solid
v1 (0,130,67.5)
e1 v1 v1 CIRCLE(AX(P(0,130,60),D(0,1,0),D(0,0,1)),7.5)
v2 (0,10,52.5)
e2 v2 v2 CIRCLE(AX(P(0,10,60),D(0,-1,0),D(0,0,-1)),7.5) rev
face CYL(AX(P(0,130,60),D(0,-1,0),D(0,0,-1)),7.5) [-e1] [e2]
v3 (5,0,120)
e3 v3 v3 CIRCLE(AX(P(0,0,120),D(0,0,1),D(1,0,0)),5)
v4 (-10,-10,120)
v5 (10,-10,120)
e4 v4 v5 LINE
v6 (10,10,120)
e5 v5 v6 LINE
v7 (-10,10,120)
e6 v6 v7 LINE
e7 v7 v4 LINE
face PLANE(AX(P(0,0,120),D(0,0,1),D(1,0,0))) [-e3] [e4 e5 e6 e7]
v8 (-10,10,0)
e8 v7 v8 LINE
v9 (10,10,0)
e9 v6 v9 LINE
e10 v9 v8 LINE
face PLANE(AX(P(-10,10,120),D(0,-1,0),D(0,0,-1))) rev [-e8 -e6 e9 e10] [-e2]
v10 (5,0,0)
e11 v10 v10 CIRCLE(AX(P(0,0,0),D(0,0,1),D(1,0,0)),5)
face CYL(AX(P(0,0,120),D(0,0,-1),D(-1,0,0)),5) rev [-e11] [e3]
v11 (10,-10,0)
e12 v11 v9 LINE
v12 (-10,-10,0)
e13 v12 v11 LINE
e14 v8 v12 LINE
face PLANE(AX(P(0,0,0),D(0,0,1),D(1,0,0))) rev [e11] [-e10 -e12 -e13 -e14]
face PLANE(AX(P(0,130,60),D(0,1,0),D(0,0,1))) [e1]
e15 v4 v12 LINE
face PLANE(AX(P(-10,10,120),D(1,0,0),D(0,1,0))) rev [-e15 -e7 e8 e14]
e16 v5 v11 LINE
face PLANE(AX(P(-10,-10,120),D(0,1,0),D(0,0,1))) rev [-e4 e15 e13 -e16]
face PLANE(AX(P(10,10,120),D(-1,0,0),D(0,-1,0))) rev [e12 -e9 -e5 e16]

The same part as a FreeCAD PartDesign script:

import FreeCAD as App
import Part
import Sketcher
from FreeCAD import Vector


def add_polygon(sketch, points):
    """Adds a closed chain of lines whose ends are joined by coincident constraints."""
    first, n = sketch.GeometryCount, len(points)
    for a, b in zip(points, points[1:] + points[:1]):
        sketch.addGeometry(Part.LineSegment(App.Vector(*a, 0), App.Vector(*b, 0)), False)
    for i in range(n):
        sketch.addConstraint(Sketcher.Constraint("Coincident", first + i, 2, first + (i + 1) % n, 1))

doc = App.newDocument("Part")
params = doc.addObject("Spreadsheet::Sheet", "Params")
for row, (alias, value) in enumerate([
    ("sketch1_diameter", "10 mm"),
    ("sketch1_width", "20 mm"),
    ("pad1_length", "120 mm"),
    ("sketch2_diameter", "15 mm"),
    ("pad2_length", "120 mm"),
], start=1):
    params.set(f"A{row}", alias)
    params.set(f"B{row}", "=" + value)
    params.setAlias(f"B{row}", alias)

body = doc.addObject("PartDesign::Body", "Body")

# Sketch on XY plane
sketch1 = body.newObject("Sketcher::SketchObject", "Sketch")
sketch1.AttachmentSupport = (doc.getObject("XY_Plane"), [""])
sketch1.MapMode = "FlatFace"
add_polygon(sketch1, [(-10, 10), (-10, -10), (10, -10), (10, 10)])  # lines 0-3
sketch1.addGeometry(Part.Circle(Vector(0, 0, 0), Vector(0, 0, 1), 5), False)  # 4
sketch1.addConstraint(Sketcher.Constraint("Vertical", 0))
sketch1.addConstraint(Sketcher.Constraint("Horizontal", 1))
sketch1.addConstraint(Sketcher.Constraint("Vertical", 2))
sketch1.addConstraint(Sketcher.Constraint("Horizontal", 3))
sketch1.addConstraint(Sketcher.Constraint("Coincident", 4, 3, -1, 1))
sketch1.addConstraint(Sketcher.Constraint("Symmetric", 0, 2, 2, 2, -1, 1))
sketch1.addConstraint(Sketcher.Constraint("Equal", 3, 0))
sketch1.addConstraint(Sketcher.Constraint("Diameter", 4, 10.0))
sketch1.addConstraint(Sketcher.Constraint("DistanceX", 1, 1, 1, 2, 20.0))
sketch1.setExpression("Constraints[11]", "Params.sketch1_diameter")
sketch1.setExpression("Constraints[12]", "Params.sketch1_width")
pad1 = body.newObject("PartDesign::Pad", "Pad")
pad1.Profile = sketch1
pad1.setExpression("Length", "Params.pad1_length")

# Sketch on XZ plane
sketch2 = body.newObject("Sketcher::SketchObject", "Sketch001")
sketch2.AttachmentSupport = (doc.getObject("XZ_Plane"), [""])
sketch2.MapMode = "FlatFace"
sketch2.AttachmentOffset = App.Placement(Vector(0, 0, -10), App.Rotation())
sketch2.addGeometry(Part.Circle(Vector(0, 60, 0), Vector(0, 0, 1), 8), False)
sketch2.addConstraint(Sketcher.Constraint("PointOnObject", 0, 3, -2))
sketch2.addConstraint(Sketcher.Constraint("Diameter", 0, 15.0))
sketch2.addConstraint(Sketcher.Constraint("DistanceY", -1, 1, 0, 3, 60.0))
sketch2.setExpression("Constraints[1]", "Params.sketch2_diameter")
pad2 = body.newObject("PartDesign::Pad", "Pad001")
pad2.Profile = sketch2
pad2.setExpression("Length", "Params.pad2_length")
pad2.Reversed = True

doc.recompute()
